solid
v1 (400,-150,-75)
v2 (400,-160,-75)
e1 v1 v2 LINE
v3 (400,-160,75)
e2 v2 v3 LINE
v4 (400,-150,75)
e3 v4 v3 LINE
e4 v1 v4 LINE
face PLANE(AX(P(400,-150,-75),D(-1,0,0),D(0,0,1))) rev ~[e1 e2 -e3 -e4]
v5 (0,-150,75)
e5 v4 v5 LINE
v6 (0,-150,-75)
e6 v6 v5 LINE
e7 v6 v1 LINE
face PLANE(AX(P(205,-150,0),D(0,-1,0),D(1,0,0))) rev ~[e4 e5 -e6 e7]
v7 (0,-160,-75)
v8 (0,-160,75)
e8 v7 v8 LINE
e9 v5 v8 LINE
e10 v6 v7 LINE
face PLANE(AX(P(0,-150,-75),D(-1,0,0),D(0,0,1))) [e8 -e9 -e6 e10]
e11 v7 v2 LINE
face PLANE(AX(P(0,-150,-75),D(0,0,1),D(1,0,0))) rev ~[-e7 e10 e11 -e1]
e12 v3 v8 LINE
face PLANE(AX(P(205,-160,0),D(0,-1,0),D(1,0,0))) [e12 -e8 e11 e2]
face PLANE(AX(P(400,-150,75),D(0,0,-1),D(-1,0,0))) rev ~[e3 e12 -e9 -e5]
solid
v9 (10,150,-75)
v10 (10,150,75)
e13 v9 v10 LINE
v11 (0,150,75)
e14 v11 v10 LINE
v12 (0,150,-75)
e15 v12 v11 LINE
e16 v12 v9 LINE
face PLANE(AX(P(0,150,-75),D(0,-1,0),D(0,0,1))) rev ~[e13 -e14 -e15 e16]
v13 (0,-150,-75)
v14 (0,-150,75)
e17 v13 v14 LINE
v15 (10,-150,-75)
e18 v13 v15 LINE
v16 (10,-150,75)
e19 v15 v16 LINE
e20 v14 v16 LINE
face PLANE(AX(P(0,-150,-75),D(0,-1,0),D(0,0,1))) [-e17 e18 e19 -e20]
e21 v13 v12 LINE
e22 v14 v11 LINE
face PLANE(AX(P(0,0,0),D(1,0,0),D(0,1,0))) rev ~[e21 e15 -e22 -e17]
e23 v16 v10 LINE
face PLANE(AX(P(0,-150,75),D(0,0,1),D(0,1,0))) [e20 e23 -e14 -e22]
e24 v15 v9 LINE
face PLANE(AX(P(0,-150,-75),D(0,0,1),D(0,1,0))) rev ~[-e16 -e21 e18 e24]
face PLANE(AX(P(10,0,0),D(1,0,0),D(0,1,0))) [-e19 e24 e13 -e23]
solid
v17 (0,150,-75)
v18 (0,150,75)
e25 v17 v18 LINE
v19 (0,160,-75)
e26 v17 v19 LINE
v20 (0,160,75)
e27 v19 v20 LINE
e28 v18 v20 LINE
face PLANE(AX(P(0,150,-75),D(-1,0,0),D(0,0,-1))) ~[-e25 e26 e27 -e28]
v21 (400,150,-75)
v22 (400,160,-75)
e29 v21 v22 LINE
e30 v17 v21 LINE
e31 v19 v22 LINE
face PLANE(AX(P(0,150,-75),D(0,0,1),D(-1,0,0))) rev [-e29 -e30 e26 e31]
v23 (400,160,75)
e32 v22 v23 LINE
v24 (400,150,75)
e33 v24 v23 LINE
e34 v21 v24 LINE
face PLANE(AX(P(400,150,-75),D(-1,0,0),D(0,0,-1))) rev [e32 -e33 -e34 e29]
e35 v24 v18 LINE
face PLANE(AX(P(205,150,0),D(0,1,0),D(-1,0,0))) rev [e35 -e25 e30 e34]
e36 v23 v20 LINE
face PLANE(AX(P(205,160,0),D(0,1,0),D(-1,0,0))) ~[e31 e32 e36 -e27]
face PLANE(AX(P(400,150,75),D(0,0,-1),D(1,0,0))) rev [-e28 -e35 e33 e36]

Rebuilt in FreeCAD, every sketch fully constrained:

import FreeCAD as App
import Part
import Sketcher
from FreeCAD import Vector

doc = App.newDocument("Part")
body = doc.addObject("PartDesign::Body", "Body")

# Sketch on YZ plane
sketch1 = body.newObject("Sketcher::SketchObject", "Sketch")
sketch1.AttachmentSupport = (doc.getObject("YZ_Plane"), [""])
sketch1.MapMode = "FlatFace"
sketch1.addGeometry(Part.LineSegment(Vector(-150, 75, 0), Vector(-150, -75, 0)), False)
sketch1.addGeometry(Part.LineSegment(Vector(-150, -75, 0), Vector(150, -75, 0)), False)
sketch1.addGeometry(Part.LineSegment(Vector(150, -75, 0), Vector(150, 75, 0)), False)
sketch1.addGeometry(Part.LineSegment(Vector(150, 75, 0), Vector(-150, 75, 0)), False)
sketch1.addConstraint(Sketcher.Constraint("Coincident", 0, 2, 1, 1))
sketch1.addConstraint(Sketcher.Constraint("Coincident", 1, 2, 2, 1))
sketch1.addConstraint(Sketcher.Constraint("Coincident", 2, 2, 3, 1))
sketch1.addConstraint(Sketcher.Constraint("Coincident", 3, 2, 0, 1))
sketch1.addConstraint(Sketcher.Constraint("Vertical", 0))
sketch1.addConstraint(Sketcher.Constraint("Horizontal", 1))
sketch1.addConstraint(Sketcher.Constraint("Vertical", 2))
sketch1.addConstraint(Sketcher.Constraint("Horizontal", 3))
sketch1.addConstraint(Sketcher.Constraint("Symmetric", 0, 2, 2, 2, -1, 1))
sketch1.addConstraint(Sketcher.Constraint("DistanceX", 1, 1, 1, 2, 300.0))
sketch1.addConstraint(Sketcher.Constraint("DistanceY", 0, 2, 0, 1, 150.0))
pad1 = body.newObject("PartDesign::Pad", "Pad")
pad1.Profile = sketch1
pad1.Length = 10
body2 = doc.addObject("PartDesign::Body", "Body001")

# Sketch on XZ plane
sketch2 = body2.newObject("Sketcher::SketchObject", "Sketch001")
sketch2.AttachmentSupport = (doc.getObject("XZ_Plane001"), [""])
sketch2.MapMode = "FlatFace"
sketch2.AttachmentOffset = App.Placement(Vector(0, 0, 150), App.Rotation())
sketch2.addGeometry(Part.LineSegment(Vector(400, -75, 0), Vector(400, 75, 0)), False)
sketch2.addGeometry(Part.LineSegment(Vector(400, 75, 0), Vector(0, 75, 0)), False)
sketch2.addGeometry(Part.LineSegment(Vector(0, 75, 0), Vector(0, -75, 0)), False)
sketch2.addGeometry(Part.LineSegment(Vector(0, -75, 0), Vector(400, -75, 0)), False)
sketch2.addConstraint(Sketcher.Constraint("Coincident", 0, 2, 1, 1))
sketch2.addConstraint(Sketcher.Constraint("Coincident", 1, 2, 2, 1))
sketch2.addConstraint(Sketcher.Constraint("Coincident", 2, 2, 3, 1))
sketch2.addConstraint(Sketcher.Constraint("Coincident", 3, 2, 0, 1))
sketch2.addConstraint(Sketcher.Constraint("Vertical", 0))
sketch2.addConstraint(Sketcher.Constraint("Horizontal", 1))
sketch2.addConstraint(Sketcher.Constraint("Vertical", 2))
sketch2.addConstraint(Sketcher.Constraint("Horizontal", 3))
sketch2.addConstraint(Sketcher.Constraint("Symmetric", 1, 2, 2, 2, -1, 1))
sketch2.addConstraint(Sketcher.Constraint("DistanceX", 1, 2, 1, 1, 400.0))
sketch2.addConstraint(Sketcher.Constraint("DistanceY", 0, 1, 0, 2, 150.0))
pad2 = body2.newObject("PartDesign::Pad", "Pad001")
pad2.Profile = sketch2
pad2.Length = 10
body3 = doc.addObject("PartDesign::Body", "Body002")
doc.recompute()

mirroring = doc.addObject("Part::Mirroring", "Mirroring")
mirroring.Source = body2
mirroring.Base = Vector(0, 0, 0)
mirroring.Normal = Vector(0, -1, 0)
body3.BaseFeature = mirroring
doc.recompute()
mirroring.Visibility = False

doc.recompute()
